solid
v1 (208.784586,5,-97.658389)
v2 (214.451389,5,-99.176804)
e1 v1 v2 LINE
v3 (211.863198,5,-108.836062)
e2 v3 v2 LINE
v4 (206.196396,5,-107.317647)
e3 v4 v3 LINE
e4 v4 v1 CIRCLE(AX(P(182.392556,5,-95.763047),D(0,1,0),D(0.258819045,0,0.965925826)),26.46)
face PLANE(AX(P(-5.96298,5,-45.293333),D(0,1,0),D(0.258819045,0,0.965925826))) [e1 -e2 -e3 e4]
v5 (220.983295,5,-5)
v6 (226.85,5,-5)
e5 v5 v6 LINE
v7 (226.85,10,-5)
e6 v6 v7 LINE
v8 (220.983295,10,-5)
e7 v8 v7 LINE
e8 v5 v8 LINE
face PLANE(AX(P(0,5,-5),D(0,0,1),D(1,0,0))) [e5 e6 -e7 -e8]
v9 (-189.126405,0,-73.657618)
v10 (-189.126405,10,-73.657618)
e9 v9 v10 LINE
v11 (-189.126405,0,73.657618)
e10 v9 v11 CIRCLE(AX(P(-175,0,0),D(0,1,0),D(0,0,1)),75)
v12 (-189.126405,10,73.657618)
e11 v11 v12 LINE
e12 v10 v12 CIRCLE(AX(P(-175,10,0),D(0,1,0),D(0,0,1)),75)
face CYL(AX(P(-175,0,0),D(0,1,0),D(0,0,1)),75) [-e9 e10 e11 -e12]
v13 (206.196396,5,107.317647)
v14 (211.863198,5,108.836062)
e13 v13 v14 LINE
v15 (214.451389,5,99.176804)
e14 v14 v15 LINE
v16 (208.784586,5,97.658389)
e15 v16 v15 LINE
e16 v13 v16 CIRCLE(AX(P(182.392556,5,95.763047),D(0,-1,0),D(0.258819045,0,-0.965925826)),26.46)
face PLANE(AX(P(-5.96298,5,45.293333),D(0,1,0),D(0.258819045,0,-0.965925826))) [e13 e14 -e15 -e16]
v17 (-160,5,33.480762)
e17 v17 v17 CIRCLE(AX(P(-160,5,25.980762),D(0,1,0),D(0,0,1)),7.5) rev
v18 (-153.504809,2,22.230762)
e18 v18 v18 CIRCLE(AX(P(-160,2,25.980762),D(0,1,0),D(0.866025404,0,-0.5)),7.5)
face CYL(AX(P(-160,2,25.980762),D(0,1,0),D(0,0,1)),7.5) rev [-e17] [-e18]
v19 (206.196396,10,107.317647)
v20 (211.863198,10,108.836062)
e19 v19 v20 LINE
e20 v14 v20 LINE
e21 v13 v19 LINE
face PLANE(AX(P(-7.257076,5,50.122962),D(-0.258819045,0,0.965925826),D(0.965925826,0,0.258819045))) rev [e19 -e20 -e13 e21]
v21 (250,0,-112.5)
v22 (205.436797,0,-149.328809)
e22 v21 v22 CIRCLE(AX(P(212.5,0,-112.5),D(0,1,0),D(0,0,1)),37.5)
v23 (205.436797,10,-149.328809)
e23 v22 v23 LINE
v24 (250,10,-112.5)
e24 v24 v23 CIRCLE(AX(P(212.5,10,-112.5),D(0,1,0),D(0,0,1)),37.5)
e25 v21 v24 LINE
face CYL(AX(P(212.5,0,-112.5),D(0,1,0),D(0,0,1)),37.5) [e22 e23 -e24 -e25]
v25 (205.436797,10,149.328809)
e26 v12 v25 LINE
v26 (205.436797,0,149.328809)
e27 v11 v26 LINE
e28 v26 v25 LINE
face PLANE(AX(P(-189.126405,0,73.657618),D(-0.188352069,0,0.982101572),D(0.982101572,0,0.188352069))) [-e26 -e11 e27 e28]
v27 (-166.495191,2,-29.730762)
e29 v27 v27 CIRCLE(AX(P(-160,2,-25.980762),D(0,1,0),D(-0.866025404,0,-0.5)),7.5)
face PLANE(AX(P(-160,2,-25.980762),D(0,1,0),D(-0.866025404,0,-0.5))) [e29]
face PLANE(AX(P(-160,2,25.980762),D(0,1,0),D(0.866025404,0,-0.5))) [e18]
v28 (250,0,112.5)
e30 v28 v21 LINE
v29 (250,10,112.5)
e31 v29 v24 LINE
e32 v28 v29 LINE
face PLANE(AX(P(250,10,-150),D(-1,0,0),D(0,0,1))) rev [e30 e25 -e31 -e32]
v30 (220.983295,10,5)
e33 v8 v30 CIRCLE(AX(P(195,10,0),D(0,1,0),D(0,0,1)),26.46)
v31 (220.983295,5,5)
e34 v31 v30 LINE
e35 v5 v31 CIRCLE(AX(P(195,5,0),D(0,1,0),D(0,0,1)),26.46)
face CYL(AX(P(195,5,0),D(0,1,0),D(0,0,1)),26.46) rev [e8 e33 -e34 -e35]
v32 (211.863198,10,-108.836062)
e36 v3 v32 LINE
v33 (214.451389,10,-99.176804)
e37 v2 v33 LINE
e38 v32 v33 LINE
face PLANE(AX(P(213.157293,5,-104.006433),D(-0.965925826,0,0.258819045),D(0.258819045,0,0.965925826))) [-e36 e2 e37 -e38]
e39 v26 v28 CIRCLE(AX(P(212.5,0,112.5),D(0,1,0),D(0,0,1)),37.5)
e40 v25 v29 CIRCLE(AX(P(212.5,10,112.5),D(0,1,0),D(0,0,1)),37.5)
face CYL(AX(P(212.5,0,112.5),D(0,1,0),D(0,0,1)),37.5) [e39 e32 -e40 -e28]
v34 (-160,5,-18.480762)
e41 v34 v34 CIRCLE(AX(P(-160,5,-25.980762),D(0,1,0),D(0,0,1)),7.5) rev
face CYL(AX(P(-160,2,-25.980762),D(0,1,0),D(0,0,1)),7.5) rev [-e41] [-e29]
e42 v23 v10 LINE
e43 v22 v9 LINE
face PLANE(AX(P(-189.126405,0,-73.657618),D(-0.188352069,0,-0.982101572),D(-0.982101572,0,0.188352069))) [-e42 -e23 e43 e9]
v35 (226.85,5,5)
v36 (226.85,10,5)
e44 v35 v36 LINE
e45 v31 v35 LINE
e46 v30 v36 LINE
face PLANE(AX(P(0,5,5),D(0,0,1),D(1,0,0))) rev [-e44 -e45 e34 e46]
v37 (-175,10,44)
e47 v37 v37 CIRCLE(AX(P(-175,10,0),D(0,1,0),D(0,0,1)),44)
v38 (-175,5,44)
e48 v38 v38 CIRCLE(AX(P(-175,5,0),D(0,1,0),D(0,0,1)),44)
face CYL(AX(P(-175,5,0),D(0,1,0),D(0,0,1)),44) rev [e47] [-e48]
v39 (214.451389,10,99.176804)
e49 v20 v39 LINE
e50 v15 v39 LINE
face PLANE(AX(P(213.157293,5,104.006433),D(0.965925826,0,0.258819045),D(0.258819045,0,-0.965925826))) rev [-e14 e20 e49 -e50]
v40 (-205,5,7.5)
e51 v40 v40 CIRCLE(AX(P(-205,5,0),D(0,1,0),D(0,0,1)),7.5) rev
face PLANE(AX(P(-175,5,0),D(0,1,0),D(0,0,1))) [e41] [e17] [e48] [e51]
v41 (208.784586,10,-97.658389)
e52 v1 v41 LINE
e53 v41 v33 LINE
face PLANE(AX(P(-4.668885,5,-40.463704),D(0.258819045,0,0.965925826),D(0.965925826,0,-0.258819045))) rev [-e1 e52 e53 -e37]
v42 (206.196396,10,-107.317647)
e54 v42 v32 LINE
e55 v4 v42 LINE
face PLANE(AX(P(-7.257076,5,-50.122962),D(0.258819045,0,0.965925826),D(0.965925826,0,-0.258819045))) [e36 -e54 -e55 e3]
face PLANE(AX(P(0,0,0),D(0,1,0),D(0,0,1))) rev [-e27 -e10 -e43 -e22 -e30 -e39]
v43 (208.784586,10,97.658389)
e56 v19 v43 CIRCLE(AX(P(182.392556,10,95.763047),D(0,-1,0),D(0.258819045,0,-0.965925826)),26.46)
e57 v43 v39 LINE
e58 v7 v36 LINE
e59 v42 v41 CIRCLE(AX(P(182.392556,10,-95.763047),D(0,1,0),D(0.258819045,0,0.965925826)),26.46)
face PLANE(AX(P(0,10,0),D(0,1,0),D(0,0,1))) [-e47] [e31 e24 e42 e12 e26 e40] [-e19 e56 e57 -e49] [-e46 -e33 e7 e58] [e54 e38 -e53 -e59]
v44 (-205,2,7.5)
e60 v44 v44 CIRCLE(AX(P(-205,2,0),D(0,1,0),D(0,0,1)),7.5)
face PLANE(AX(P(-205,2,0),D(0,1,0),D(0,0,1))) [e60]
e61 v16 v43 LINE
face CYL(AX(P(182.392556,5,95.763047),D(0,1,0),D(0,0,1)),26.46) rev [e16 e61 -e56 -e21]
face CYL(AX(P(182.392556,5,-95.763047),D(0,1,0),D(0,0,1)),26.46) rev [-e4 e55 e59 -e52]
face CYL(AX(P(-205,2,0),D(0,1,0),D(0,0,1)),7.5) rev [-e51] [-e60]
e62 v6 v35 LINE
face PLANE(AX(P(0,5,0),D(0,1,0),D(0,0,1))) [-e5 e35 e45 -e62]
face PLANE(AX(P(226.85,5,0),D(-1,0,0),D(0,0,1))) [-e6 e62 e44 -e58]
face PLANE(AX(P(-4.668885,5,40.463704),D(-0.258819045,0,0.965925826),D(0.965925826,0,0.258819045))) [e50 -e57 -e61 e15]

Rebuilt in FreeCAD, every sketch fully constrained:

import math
import FreeCAD as App
import Part
import Sketcher

V = App.Vector
Q = App.Units.Quantity


def add_polygon(sketch, points):
    """Adds a closed chain of lines whose ends are joined by coincident constraints."""
    first, n = sketch.GeometryCount, len(points)
    for a, b in zip(points, points[1:] + points[:1]):
        sketch.addGeometry(Part.LineSegment(App.Vector(*a, 0), App.Vector(*b, 0)), False)
    for i in range(n):
        sketch.addConstraint(Sketcher.Constraint("Coincident", first + i, 2, first + (i + 1) % n, 1))

doc = App.newDocument("Part")
params = doc.addObject("Spreadsheet::Sheet", "Params")
for row, (alias, value) in enumerate([
    ("sketch1_width", "500 mm"),
    ("sketch1_height", "300 mm"),
    ("pad1_length", "10 mm"),
    ("sketch2_radius", "75 mm"),
    ("sketch2_radius2", "37.5 mm"),
    ("sketch2_height", "225 mm"),
    ("pocket1_length", "10 mm"),
    ("sketch3_height", "10 mm"),
    ("sketch3_radius", "26.46 mm"),
    ("pocket2_length", "5 mm"),
    ("sketch4_radius", "26.46 mm"),
    ("sketch4_length", "10 mm"),
    ("pocket3_length", "5 mm"),
    ("sketch5_height", "10 mm"),
    ("sketch5_radius", "26.46 mm"),
    ("pocket4_length", "5 mm"),
    ("sketch6_diameter", "15 mm"),
    ("pocket5_length", "8 mm"),
    ("sketch7_diameter", "88 mm"),
    ("pocket6_length", "5 mm"),
], start=1):
    params.set(f"A{row}", alias)
    params.set(f"B{row}", "=" + value)
    params.setAlias(f"B{row}", alias)

body = doc.addObject("PartDesign::Body", "Body")

# Sketch on XZ plane
sketch1 = doc.addObject("Sketcher::SketchObject", "Sketch")
body.addObject(sketch1)
sketch1.AttachmentSupport = (doc.XZ_Plane, [""])
sketch1.MapMode = "FlatFace"
add_polygon(sketch1, [(-250, -150), (-250, 150), (250, 150), (250, -150)])  # lines 0-3
sketch1.addConstraint([
    Sketcher.Constraint("Vertical", 0),
    Sketcher.Constraint("Horizontal", 1),
    Sketcher.Constraint("Vertical", 2),
    Sketcher.Constraint("Horizontal", 3),
    Sketcher.Constraint("Symmetric", 0, 2, 2, 2, -1, 1),
    Sketcher.Constraint("DistanceX", 1, 1, 1, 2, Q("500 mm")),
    Sketcher.Constraint("DistanceY", 0, 1, 0, 2, Q("300 mm")),
])
sketch1.setExpression("Constraints[9]", "Params.sketch1_width")
sketch1.setExpression("Constraints[10]", "Params.sketch1_height")
pad1 = doc.addObject("PartDesign::Pad", "Pad")
body.addObject(pad1)
pad1.Profile = sketch1
pad1.setExpression("Length", "Params.pad1_length")
pad1.Reversed = True

# Sketch on XZ plane
sketch2 = doc.addObject("Sketcher::SketchObject", "Sketch001")
body.addObject(sketch2)
sketch2.AttachmentSupport = (doc.XZ_Plane, [""])
sketch2.MapMode = "FlatFace"
sketch2.AttachmentOffset = App.Placement(V(0, 0, -10), App.Rotation())
add_polygon(sketch2, [(-309, -209), (-309, 209), (309, 209), (309, -209)])  # lines 0-3
sketch2.addGeometry(Part.ArcOfCircle(Part.Circle(V(-175, 0, 0), V(0, 0, 1), 75), math.radians(101), math.radians(259)), False)  # 4
sketch2.addGeometry(Part.LineSegment(V(-189, -74, 0), V(205, -149, 0)), False)  # 5
sketch2.addGeometry(Part.ArcOfCircle(Part.Circle(V(212, -112, 0), V(0, 0, 1), 38), math.radians(-101), math.radians(0)), False)  # 6
sketch2.addGeometry(Part.LineSegment(V(250, -112, 0), V(250, 112, 0)), False)  # 7
sketch2.addGeometry(Part.ArcOfCircle(Part.Circle(V(212, 112, 0), V(0, 0, 1), 38), math.radians(0), math.radians(101)), False)  # 8
sketch2.addGeometry(Part.LineSegment(V(205, 149, 0), V(-189, 74, 0)), False)  # 9
sketch2.addConstraint([
    Sketcher.Constraint("Tangent", 4, 2, 5, 1),
    Sketcher.Constraint("Tangent", 5, 2, 6, 1),
    Sketcher.Constraint("Tangent", 6, 2, 7, 1),
    Sketcher.Constraint("Tangent", 7, 2, 8, 1),
    Sketcher.Constraint("Tangent", 8, 2, 9, 1),
    Sketcher.Constraint("Tangent", 9, 2, 4, 1),
    Sketcher.Constraint("Vertical", 0),
    Sketcher.Constraint("Horizontal", 1),
    Sketcher.Constraint("Vertical", 2),
    Sketcher.Constraint("Horizontal", 3),
    Sketcher.Constraint("Vertical", 7),
    Sketcher.Constraint("Equal", 6, 8),
    Sketcher.Constraint("Symmetric", 0, 2, 2, 2, -1, 1),
    Sketcher.Constraint("Symmetric", 5, 2, 8, 2, -1),
    Sketcher.Constraint("Radius", 4, Q("75 mm")),
    Sketcher.Constraint("Radius", 6, Q("37.5 mm")),
    Sketcher.Constraint("DistanceY", 7, 1, 7, 2, Q("225 mm")),
    Sketcher.Constraint("DistanceX", 4, 3, -1, 1, Q("175 mm")),
    Sketcher.Constraint("DistanceX", -1, 1, 6, 2, Q("250 mm")),
    Sketcher.Constraint("DistanceX", 1, 1, 1, 2, Q("618.636 mm")),
    Sketcher.Constraint("DistanceY", 0, 1, 0, 2, Q("418.636 mm")),
])
sketch2.setExpression("Constraints[18]", "Params.sketch2_radius")
sketch2.setExpression("Constraints[19]", "Params.sketch2_radius2")
sketch2.setExpression("Constraints[20]", "Params.sketch2_height")
pocket1 = doc.addObject("PartDesign::Pocket", "Pocket")
body.addObject(pocket1)
pocket1.Profile = sketch2
pocket1.setExpression("Length", "Params.pocket1_length")
pocket1.Reversed = True

# Sketch on XZ plane
sketch3 = doc.addObject("Sketcher::SketchObject", "Sketch002")
body.addObject(sketch3)
sketch3.AttachmentSupport = (doc.XZ_Plane, [""])
sketch3.MapMode = "FlatFace"
sketch3.AttachmentOffset = App.Placement(V(0, 0, -10), App.Rotation())
sketch3.addGeometry([
    Part.LineSegment(V(221, 5, 0), V(227, 5, 0)),
    Part.LineSegment(V(227, 5, 0), V(227, -5, 0)),
    Part.LineSegment(V(227, -5, 0), V(221, -5, 0)),
    Part.ArcOfCircle(Part.Circle(V(195, 0, 0), V(0, 0, 1), 26), math.radians(11), math.radians(349)),
], False)
sketch3.addConstraint([
    Sketcher.Constraint("Coincident", 0, 2, 1, 1),
    Sketcher.Constraint("Coincident", 1, 2, 2, 1),
    Sketcher.Constraint("Coincident", 2, 2, 3, 2),
    Sketcher.Constraint("Coincident", 3, 1, 0, 1),
    Sketcher.Constraint("Horizontal", 0),
    Sketcher.Constraint("Vertical", 1),
    Sketcher.Constraint("Horizontal", 2),
    Sketcher.Constraint("Symmetric", 2, 2, 3, 1, -1),
    Sketcher.Constraint("DistanceY", 1, 2, 1, 1, Q("10 mm")),
    Sketcher.Constraint("Radius", 3, Q("26.46 mm")),
    Sketcher.Constraint("DistanceX", -1, 1, 3, 3, Q("195 mm")),
    Sketcher.Constraint("DistanceX", -1, 1, 0, 2, Q("226.85 mm")),
])
sketch3.setExpression("Constraints[8]", "Params.sketch3_height")
sketch3.setExpression("Constraints[9]", "Params.sketch3_radius")
pocket2 = doc.addObject("PartDesign::Pocket", "Pocket001")
body.addObject(pocket2)
pocket2.Profile = sketch3
pocket2.setExpression("Length", "Params.pocket2_length")
pocket2.Reversed = True
doc.recompute()

datumline = doc.addObject("PartDesign::Line", "DatumLine")
body.addObject(datumline)
datumline.Placement = App.Placement(V(-175, 0, 0), App.Rotation(V(0, 0, 1), V(0, 1, 0)))
polarpattern = doc.addObject("PartDesign::PolarPattern", "PolarPattern")
body.addObject(polarpattern)
polarpattern.Originals = [pocket2]
polarpattern.Axis = (datumline, [""])
polarpattern.Angle = 15
polarpattern.Occurrences = 2
body.Tip = polarpattern

# Sketch on XZ plane
sketch4 = doc.addObject("Sketcher::SketchObject", "Sketch003")
body.addObject(sketch4)
sketch4.AttachmentSupport = (doc.XZ_Plane, [""])
sketch4.MapMode = "FlatFace"
sketch4.AttachmentOffset = App.Placement(V(0, 0, -10), App.Rotation())
sketch4.addGeometry([
    Part.LineSegment(V(214, 99, 0), V(209, 98, 0)),
    Part.ArcOfCircle(Part.Circle(V(182, 96, 0), V(0, 0, 1), 26), math.radians(26), math.radians(364)),
    Part.LineSegment(V(206, 107, 0), V(212, 109, 0)),
    Part.LineSegment(V(212, 109, 0), V(214, 99, 0)),
], False)
sketch4.addConstraint([
    Sketcher.Constraint("Coincident", 0, 2, 1, 2),
    Sketcher.Constraint("Coincident", 1, 1, 2, 1),
    Sketcher.Constraint("Coincident", 2, 2, 3, 1),
    Sketcher.Constraint("Coincident", 3, 2, 0, 1),
    Sketcher.Constraint("Parallel", 0, 2),
    Sketcher.Constraint("Perpendicular", 2, 3),
    Sketcher.Constraint("Equal", 0, 2),
    Sketcher.Constraint("Angle", 0, Q("-165 deg")),
    Sketcher.Constraint("Radius", 1, Q("26.46 mm")),
    Sketcher.Constraint("Distance", 3, Q("10 mm")),
    Sketcher.Constraint("DistanceX", -1, 1, 2, 2, Q("211.863198 mm")),
    Sketcher.Constraint("DistanceY", -1, 1, 0, 2, Q("97.658389 mm")),
    Sketcher.Constraint("DistanceX", 0, 2, 2, 2, Q("3.078612 mm")),
])
sketch4.setExpression("Constraints[8]", "Params.sketch4_radius")
sketch4.setExpression("Constraints[9]", "Params.sketch4_length")
pocket3 = doc.addObject("PartDesign::Pocket", "Pocket002")
body.addObject(pocket3)
pocket3.Profile = sketch4
pocket3.setExpression("Length", "Params.pocket3_length")
pocket3.Reversed = True

# Sketch on XZ plane
sketch5 = doc.addObject("Sketcher::SketchObject", "Sketch004")
body.addObject(sketch5)
sketch5.AttachmentSupport = (doc.XZ_Plane, [""])
sketch5.MapMode = "FlatFace"
sketch5.AttachmentOffset = App.Placement(V(0, 0, -10), App.Rotation())
sketch5.addGeometry([
    Part.LineSegment(V(227, -5, 0), V(221, -5, 0)),
    Part.ArcOfCircle(Part.Circle(V(195, 0, 0), V(0, 0, 1), 26), math.radians(11), math.radians(349)),
    Part.LineSegment(V(221, 5, 0), V(227, 5, 0)),
    Part.LineSegment(V(227, 5, 0), V(227, -5, 0)),
], False)
sketch5.addConstraint([
    Sketcher.Constraint("Coincident", 0, 2, 1, 2),
    Sketcher.Constraint("Coincident", 1, 1, 2, 1),
    Sketcher.Constraint("Coincident", 2, 2, 3, 1),
    Sketcher.Constraint("Coincident", 3, 2, 0, 1),
    Sketcher.Constraint("Horizontal", 0),
    Sketcher.Constraint("Horizontal", 2),
    Sketcher.Constraint("Vertical", 3),
    Sketcher.Constraint("Symmetric", 0, 2, 1, 1, -1),
    Sketcher.Constraint("DistanceY", 3, 2, 3, 1, Q("10 mm")),
    Sketcher.Constraint("Radius", 1, Q("26.46 mm")),
    Sketcher.Constraint("DistanceX", -1, 1, 1, 3, Q("195 mm")),
    Sketcher.Constraint("DistanceX", -1, 1, 2, 2, Q("226.85 mm")),
])
sketch5.setExpression("Constraints[8]", "Params.sketch5_height")
sketch5.setExpression("Constraints[9]", "Params.sketch5_radius")
pocket4 = doc.addObject("PartDesign::Pocket", "Pocket003")
body.addObject(pocket4)
pocket4.Profile = sketch5
pocket4.setExpression("Length", "Params.pocket4_length")
pocket4.Reversed = True

# Sketch on XZ plane
sketch6 = doc.addObject("Sketcher::SketchObject", "Sketch005")
body.addObject(sketch6)
sketch6.AttachmentSupport = (doc.XZ_Plane, [""])
sketch6.MapMode = "FlatFace"
sketch6.AttachmentOffset = App.Placement(V(0, 0, -10), App.Rotation())
sketch6.addGeometry(Part.Circle(V(-205, 0, 0), V(0, 0, 1), 8), False)
sketch6.addConstraint([
    Sketcher.Constraint("PointOnObject", 0, 3, -1),
    Sketcher.Constraint("Diameter", 0, Q("15 mm")),
    Sketcher.Constraint("DistanceX", 0, 3, -1, 1, Q("205 mm")),
])
sketch6.setExpression("Constraints[1]", "Params.sketch6_diameter")
pocket5 = doc.addObject("PartDesign::Pocket", "Pocket004")
body.addObject(pocket5)
pocket5.Profile = sketch6
pocket5.setExpression("Length", "Params.pocket5_length")
pocket5.Reversed = True
doc.recompute()

datumline2 = doc.addObject("PartDesign::Line", "DatumLine001")
body.addObject(datumline2)
datumline2.Placement = App.Placement(V(-175, 0, 0), App.Rotation(V(0, 0, 1), V(0, 1, 0)))
polarpattern2 = doc.addObject("PartDesign::PolarPattern", "PolarPattern001")
body.addObject(polarpattern2)
polarpattern2.Originals = [pocket5]
polarpattern2.Axis = (datumline2, [""])
polarpattern2.Angle = 360
polarpattern2.Occurrences = 3
body.Tip = polarpattern2

# Sketch on XZ plane
sketch7 = doc.addObject("Sketcher::SketchObject", "Sketch006")
body.addObject(sketch7)
sketch7.AttachmentSupport = (doc.XZ_Plane, [""])
sketch7.MapMode = "FlatFace"
sketch7.AttachmentOffset = App.Placement(V(0, 0, -10), App.Rotation())
sketch7.addGeometry(Part.Circle(V(-175, 0, 0), V(0, 0, 1), 44), False)
sketch7.addConstraint([
    Sketcher.Constraint("PointOnObject", 0, 3, -1),
    Sketcher.Constraint("Diameter", 0, Q("88 mm")),
    Sketcher.Constraint("DistanceX", 0, 3, -1, 1, Q("175 mm")),
])
sketch7.setExpression("Constraints[1]", "Params.sketch7_diameter")
pocket6 = doc.addObject("PartDesign::Pocket", "Pocket005")
body.addObject(pocket6)
pocket6.Profile = sketch7
pocket6.setExpression("Length", "Params.pocket6_length")
pocket6.Reversed = True

doc.recompute()
